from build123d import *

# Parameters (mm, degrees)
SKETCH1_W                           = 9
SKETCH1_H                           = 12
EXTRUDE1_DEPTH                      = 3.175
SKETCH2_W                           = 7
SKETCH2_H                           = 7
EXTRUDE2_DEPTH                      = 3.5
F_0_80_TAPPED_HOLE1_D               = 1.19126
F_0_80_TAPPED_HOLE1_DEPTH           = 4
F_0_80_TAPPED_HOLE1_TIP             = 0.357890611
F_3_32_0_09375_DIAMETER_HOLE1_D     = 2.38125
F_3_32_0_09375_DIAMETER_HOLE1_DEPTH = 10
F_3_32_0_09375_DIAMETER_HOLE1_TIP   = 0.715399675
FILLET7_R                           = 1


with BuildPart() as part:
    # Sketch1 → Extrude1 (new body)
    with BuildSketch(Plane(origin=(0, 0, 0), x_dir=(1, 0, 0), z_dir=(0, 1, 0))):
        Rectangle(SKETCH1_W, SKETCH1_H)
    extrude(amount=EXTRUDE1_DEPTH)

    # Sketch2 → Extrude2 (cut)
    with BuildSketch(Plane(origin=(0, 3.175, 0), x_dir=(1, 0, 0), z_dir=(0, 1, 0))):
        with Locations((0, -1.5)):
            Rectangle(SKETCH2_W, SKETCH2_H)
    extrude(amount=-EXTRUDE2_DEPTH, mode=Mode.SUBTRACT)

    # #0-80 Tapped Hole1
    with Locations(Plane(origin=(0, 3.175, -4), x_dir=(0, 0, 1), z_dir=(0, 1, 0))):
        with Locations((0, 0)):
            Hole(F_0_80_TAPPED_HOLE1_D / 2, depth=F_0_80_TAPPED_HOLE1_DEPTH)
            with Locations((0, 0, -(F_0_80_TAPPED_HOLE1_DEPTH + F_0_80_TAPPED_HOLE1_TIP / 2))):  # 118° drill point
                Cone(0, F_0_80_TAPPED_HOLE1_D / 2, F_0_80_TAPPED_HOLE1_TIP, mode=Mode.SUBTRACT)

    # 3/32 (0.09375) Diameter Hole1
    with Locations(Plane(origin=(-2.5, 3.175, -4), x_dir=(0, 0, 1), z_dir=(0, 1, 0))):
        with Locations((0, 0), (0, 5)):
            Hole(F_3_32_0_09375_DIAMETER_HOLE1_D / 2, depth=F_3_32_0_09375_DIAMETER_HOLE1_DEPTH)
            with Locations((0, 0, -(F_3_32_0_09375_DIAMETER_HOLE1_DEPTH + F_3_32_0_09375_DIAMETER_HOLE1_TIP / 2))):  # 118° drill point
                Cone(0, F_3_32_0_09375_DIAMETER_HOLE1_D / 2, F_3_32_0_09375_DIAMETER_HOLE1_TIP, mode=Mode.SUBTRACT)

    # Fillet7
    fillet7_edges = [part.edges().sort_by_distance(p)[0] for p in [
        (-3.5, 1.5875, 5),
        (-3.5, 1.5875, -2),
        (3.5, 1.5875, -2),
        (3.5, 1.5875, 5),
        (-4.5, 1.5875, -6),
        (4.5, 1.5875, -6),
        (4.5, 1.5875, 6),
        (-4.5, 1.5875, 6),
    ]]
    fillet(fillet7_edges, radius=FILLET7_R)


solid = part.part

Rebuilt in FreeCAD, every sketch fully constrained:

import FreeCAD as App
import Part
import Sketcher


def edges_at(feature, points):
    """Names of the edges that pass closest to the given points."""
    edges = feature.Shape.Edges
    near = lambda p: min(range(len(edges)), key=lambda i: edges[i].distToShape(Part.Vertex(*p))[0])
    return sorted({f"Edge{near(p) + 1}" for p in points})


def add_polygon(sketch, points):
    """Adds a closed chain of lines whose ends are joined by coincident constraints."""
    first, n = sketch.GeometryCount, len(points)
    for a, b in zip(points, points[1:] + points[:1]):
        sketch.addGeometry(Part.LineSegment(App.Vector(*a, 0), App.Vector(*b, 0)), False)
    for i in range(n):
        sketch.addConstraint(Sketcher.Constraint("Coincident", first + i, 2, first + (i + 1) % n, 1))

doc = App.newDocument("Part")
body = doc.addObject("PartDesign::Body", "Body")

sketch1 = body.newObject("Sketcher::SketchObject", "Sketch")
sketch1.AttachmentSupport = (doc.getObject("XZ_Plane"), [""])
sketch1.MapMode = "FlatFace"
add_polygon(sketch1, [(-4, -6), (-4, 6), (4, 6), (4, -6)])
sketch1.addConstraint([
    Sketcher.Constraint("Vertical", 0),
    Sketcher.Constraint("Horizontal", 1),
    Sketcher.Constraint("Vertical", 2),
    Sketcher.Constraint("Horizontal", 3),
    Sketcher.Constraint("Symmetric", 0, 2, 2, 2, -1, 1),
    Sketcher.Constraint("DistanceX", 1, 1, 1, 2, 9.0),
    Sketcher.Constraint("DistanceY", 0, 1, 0, 2, 12.0),
])
pad1 = body.newObject("PartDesign::Pad", "Pad")
pad1.Profile = sketch1
pad1.Length = 3.175
pad1.Reversed = True

sketch2 = body.newObject("Sketcher::SketchObject", "Sketch001")
sketch2.AttachmentSupport = (doc.getObject("XZ_Plane"), [""])
sketch2.MapMode = "FlatFace"
sketch2.AttachmentOffset = App.Placement(App.Vector(0, 0, -3.175), App.Rotation())
add_polygon(sketch2, [(-4, -2), (-4, 5), (4, 5), (4, -2)])
sketch2.addConstraint([
    Sketcher.Constraint("Vertical", 0),
    Sketcher.Constraint("Horizontal", 1),
    Sketcher.Constraint("Vertical", 2),
    Sketcher.Constraint("Horizontal", 3),
    Sketcher.Constraint("Equal", 3, 0),
    Sketcher.Constraint("DistanceX", 1, 1, 1, 2, 7.0),
    Sketcher.Constraint("DistanceY", -1, 1, 0, 2, 5.0),
    Sketcher.Constraint("DistanceX", 0, 2, -1, 1, 3.5),
])
pocket1 = body.newObject("PartDesign::Pocket", "Pocket")
pocket1.Profile = sketch2
pocket1.Length = 3.5
pocket1.Reversed = True

sketch3 = body.newObject("Sketcher::SketchObject", "Sketch002")
sketch3.AttachmentSupport = (doc.getObject("XZ_Plane"), [""])
sketch3.MapMode = "FlatFace"
sketch3.AttachmentOffset = App.Placement(App.Vector(0, 0, -3.175), App.Rotation())
sketch3.addGeometry(Part.Circle(App.Vector(0, -4, 0), App.Vector(0, 0, 1), 0.6), False)
sketch3.addConstraint([
    Sketcher.Constraint("PointOnObject", 0, 3, -2),
    Sketcher.Constraint("DistanceY", 0, 3, -1, 1, 4.0),
    Sketcher.Constraint("Diameter", 0, 1.19126),
])
doc.recompute()
hole = body.newObject("PartDesign::Hole", "Hole")
hole.Profile = sketch3
hole.ThreadType = "None"
hole.Diameter = 1.19126
hole.DepthType = "Dimension"
hole.Depth = 4
hole.DrillPoint = "Angled"
hole.DrillPointAngle = 118
hole.Reversed = True

sketch4 = body.newObject("Sketcher::SketchObject", "Sketch003")
sketch4.AttachmentSupport = (doc.getObject("XZ_Plane"), [""])
sketch4.MapMode = "FlatFace"
sketch4.AttachmentOffset = App.Placement(App.Vector(0, 0, -3.175), App.Rotation())
sketch4.addGeometry([
    Part.Circle(App.Vector(-2.5, -4, 0), App.Vector(0, 0, 1), 1.2),
    Part.Circle(App.Vector(2.5, -4, 0), App.Vector(0, 0, 1), 1.2),
], False)
sketch4.addConstraint([
    Sketcher.Constraint("Equal", 0, 1),
    Sketcher.Constraint("Symmetric", 0, 3, 1, 3, -2),
    Sketcher.Constraint("DistanceY", 0, 3, -1, 1, 4.0),
    Sketcher.Constraint("DistanceX", 0, 3, 1, 3, 5.0),
    Sketcher.Constraint("Diameter", 0, 2.38125),
])
doc.recompute()
hole2 = body.newObject("PartDesign::Hole", "Hole001")
hole2.Profile = sketch4
hole2.ThreadType = "None"
hole2.Diameter = 2.38125
hole2.DepthType = "Dimension"
hole2.Depth = 10
hole2.DrillPoint = "Angled"
hole2.DrillPointAngle = 118
hole2.Reversed = True
doc.recompute()

fillet = body.newObject("PartDesign::Fillet", "Fillet")
fillet.Base = (hole2, edges_at(hole2, [
    (-3.5, 1.587, 5),
    (-3.5, 1.587, -2),
    (3.5, 1.587, -2),
    (3.5, 1.587, 5),
    (-4.5, 1.587, -6),
    (4.5, 1.587, -6),
    (4.5, 1.587, 6),
    (-4.5, 1.587, 6),
]))
fillet.Radius = 1

doc.recompute()
